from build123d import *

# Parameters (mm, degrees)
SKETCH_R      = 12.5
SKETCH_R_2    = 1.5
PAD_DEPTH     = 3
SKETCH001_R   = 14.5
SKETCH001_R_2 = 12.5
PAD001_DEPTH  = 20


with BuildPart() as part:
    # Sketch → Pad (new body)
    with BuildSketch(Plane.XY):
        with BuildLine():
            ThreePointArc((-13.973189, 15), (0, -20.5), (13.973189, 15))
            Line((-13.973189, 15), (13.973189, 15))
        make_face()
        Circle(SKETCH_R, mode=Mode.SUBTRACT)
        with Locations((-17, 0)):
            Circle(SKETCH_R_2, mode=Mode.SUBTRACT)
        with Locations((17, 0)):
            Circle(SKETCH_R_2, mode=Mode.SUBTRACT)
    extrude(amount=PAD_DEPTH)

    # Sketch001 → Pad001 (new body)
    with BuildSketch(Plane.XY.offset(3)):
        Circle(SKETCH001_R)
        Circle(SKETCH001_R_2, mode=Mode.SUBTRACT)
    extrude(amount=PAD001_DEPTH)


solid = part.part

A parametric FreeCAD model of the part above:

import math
import FreeCAD as App
import Part
import Sketcher

doc = App.newDocument("Part")
body = doc.addObject("PartDesign::Body", "Body")

sketch1 = body.newObject("Sketcher::SketchObject", "Sketch")
sketch1.AttachmentSupport = (doc.getObject("XY_Plane"), [""])
sketch1.MapMode = "FlatFace"
sketch1.addGeometry(Part.ArcOfCircle(Part.Circle(App.Vector(0, 0, 0), App.Vector(0, 0, 1), 20.5), math.radians(133), math.radians(407)), False)
sketch1.addGeometry(Part.LineSegment(App.Vector(14, 15, 0), App.Vector(-14, 15, 0)), False)
sketch1.addGeometry(Part.Circle(App.Vector(-17, 0, 0), App.Vector(0, 0, 1), 1.5), False)
sketch1.addGeometry(Part.Circle(App.Vector(0, 0, 0), App.Vector(0, 0, 1), 12.5), False)
sketch1.addGeometry(Part.Circle(App.Vector(17, 0, 0), App.Vector(0, 0, 1), 1.5), False)
sketch1.addConstraint(Sketcher.Constraint("Coincident", 0, 1, 1, 2))
sketch1.addConstraint(Sketcher.Constraint("Coincident", 1, 1, 0, 2))
sketch1.addConstraint(Sketcher.Constraint("Horizontal", 1))
sketch1.addConstraint(Sketcher.Constraint("Coincident", 0, 3, -1, 1))
sketch1.addConstraint(Sketcher.Constraint("Coincident", 3, 3, -1, 1))
sketch1.addConstraint(Sketcher.Constraint("Equal", 2, 4))
sketch1.addConstraint(Sketcher.Constraint("Symmetric", 2, 3, 4, 3, -1, 1))
sketch1.addConstraint(Sketcher.Constraint("PointOnObject", 2, 3, -1))
sketch1.addConstraint(Sketcher.Constraint("Diameter", 2, 3.0))
sketch1.addConstraint(Sketcher.Constraint("Diameter", 3, 25.0))
sketch1.addConstraint(Sketcher.Constraint("Radius", 0, 20.5))
sketch1.addConstraint(Sketcher.Constraint("DistanceX", 2, 3, -1, 1, 17.0))
sketch1.addConstraint(Sketcher.Constraint("DistanceY", -1, 1, 0, 1, 15.0))
pad1 = body.newObject("PartDesign::Pad", "Pad")
pad1.Profile = sketch1
pad1.Length = 3

sketch2 = body.newObject("Sketcher::SketchObject", "Sketch001")
sketch2.AttachmentSupport = (doc.getObject("XY_Plane"), [""])
sketch2.MapMode = "FlatFace"
sketch2.AttachmentOffset = App.Placement(App.Vector(0, 0, 3), App.Rotation())
sketch2.addGeometry(Part.Circle(App.Vector(0, 0, 0), App.Vector(0, 0, 1), 14), False)
sketch2.addGeometry(Part.Circle(App.Vector(0, 0, 0), App.Vector(0, 0, 1), 12), False)
sketch2.addConstraint(Sketcher.Constraint("Coincident", 0, 3, -1, 1))
sketch2.addConstraint(Sketcher.Constraint("Coincident", 1, 3, -1, 1))
sketch2.addConstraint(Sketcher.Constraint("Diameter", 0, 29.0))
sketch2.addConstraint(Sketcher.Constraint("Diameter", 1, 25.0))
pad2 = body.newObject("PartDesign::Pad", "Pad001")
pad2.Profile = sketch2
pad2.Length = 20

doc.recompute()
